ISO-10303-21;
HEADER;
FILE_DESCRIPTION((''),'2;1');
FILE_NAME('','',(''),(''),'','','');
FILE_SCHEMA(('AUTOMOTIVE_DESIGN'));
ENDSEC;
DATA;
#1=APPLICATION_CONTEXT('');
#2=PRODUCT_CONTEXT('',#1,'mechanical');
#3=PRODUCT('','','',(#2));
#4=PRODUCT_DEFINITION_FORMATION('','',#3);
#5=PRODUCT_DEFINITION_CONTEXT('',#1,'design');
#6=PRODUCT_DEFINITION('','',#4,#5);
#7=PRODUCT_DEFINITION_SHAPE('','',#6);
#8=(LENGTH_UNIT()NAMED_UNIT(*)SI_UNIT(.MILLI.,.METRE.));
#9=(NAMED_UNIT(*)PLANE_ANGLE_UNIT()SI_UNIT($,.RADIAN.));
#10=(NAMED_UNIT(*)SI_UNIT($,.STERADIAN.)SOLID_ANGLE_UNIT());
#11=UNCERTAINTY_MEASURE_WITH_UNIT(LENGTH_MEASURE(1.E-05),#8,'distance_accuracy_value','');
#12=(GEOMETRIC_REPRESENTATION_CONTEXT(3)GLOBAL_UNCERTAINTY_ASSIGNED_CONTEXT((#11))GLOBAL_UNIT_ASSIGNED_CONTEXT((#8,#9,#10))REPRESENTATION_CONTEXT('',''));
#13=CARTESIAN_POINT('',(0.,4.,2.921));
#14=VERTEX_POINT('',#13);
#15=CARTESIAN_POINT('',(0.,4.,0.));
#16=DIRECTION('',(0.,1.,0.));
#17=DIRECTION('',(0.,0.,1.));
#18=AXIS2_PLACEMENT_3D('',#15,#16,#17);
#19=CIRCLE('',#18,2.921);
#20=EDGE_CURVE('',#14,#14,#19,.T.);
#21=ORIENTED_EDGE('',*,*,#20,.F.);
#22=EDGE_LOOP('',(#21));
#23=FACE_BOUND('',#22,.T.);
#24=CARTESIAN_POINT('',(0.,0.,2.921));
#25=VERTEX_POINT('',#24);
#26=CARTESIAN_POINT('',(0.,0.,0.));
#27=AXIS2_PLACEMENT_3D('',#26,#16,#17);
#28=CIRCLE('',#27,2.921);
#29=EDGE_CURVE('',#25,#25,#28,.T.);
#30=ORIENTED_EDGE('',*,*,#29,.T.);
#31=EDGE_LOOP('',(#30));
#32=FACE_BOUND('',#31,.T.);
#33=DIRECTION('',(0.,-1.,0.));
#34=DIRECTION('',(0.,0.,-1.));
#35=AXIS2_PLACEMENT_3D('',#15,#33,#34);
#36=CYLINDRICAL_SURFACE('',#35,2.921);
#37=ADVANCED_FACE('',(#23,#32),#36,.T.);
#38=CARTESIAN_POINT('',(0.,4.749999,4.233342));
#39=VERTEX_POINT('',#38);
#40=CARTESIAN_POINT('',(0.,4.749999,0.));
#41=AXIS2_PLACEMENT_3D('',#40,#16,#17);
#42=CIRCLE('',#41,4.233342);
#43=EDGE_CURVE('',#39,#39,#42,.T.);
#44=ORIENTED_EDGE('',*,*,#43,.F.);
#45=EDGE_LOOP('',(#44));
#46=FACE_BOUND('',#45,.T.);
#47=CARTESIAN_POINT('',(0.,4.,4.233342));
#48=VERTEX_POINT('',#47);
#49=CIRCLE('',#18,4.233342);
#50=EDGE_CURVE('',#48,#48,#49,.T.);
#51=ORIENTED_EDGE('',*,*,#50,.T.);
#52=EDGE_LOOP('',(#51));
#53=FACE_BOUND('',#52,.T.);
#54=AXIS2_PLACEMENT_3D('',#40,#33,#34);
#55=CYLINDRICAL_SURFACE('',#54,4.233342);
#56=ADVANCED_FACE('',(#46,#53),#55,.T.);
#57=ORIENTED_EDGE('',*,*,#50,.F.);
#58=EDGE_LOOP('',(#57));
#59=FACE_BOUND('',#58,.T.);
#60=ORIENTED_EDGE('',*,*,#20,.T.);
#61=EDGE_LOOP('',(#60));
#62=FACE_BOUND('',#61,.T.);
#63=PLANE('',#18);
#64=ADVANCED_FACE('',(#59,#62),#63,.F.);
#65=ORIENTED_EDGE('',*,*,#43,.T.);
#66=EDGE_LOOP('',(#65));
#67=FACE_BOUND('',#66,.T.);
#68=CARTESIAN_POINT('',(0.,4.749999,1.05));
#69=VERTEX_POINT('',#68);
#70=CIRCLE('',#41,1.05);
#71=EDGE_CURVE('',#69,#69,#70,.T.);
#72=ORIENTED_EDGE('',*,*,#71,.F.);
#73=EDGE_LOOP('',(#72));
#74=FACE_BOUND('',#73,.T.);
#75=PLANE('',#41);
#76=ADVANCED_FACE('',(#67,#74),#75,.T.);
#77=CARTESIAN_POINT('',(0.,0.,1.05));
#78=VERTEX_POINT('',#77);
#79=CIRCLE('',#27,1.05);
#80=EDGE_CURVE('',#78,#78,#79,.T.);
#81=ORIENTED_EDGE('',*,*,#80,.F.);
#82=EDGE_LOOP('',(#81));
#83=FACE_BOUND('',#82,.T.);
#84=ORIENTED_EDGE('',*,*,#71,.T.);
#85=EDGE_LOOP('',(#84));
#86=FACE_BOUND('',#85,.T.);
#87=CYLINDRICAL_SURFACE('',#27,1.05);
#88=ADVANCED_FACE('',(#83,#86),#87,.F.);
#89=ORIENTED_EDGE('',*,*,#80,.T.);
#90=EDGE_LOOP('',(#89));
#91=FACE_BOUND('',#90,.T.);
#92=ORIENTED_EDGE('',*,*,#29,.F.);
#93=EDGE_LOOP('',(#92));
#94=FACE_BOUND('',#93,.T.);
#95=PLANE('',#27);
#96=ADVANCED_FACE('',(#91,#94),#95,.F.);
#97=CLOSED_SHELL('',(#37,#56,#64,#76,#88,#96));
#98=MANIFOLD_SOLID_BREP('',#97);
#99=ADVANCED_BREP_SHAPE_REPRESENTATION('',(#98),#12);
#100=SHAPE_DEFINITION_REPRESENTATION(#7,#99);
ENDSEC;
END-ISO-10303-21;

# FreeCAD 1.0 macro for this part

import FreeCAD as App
import Part
import Sketcher

V = App.Vector
Q = App.Units.Quantity

doc = App.newDocument("Part")
body = doc.addObject("PartDesign::Body", "Body")

# Sketch on XZ plane
sketch1 = body.newObject("Sketcher::SketchObject", "Sketch")
sketch1.AttachmentSupport = (doc.getObject("XZ_Plane"), [""])
sketch1.MapMode = "FlatFace"
sketch1.addGeometry(Part.Circle(V(0, 0, 0), V(0, 0, 1), 2.9), False)
sketch1.addConstraint(Sketcher.Constraint("Coincident", 0, 3, -1, 1))
sketch1.addConstraint(Sketcher.Constraint("Diameter", 0, Q("5.842 mm")))
pad1 = body.newObject("PartDesign::Pad", "Pad")
pad1.Profile = sketch1
pad1.Length = 4
pad1.Reversed = True

# Sketch on XZ plane
sketch2 = body.newObject("Sketcher::SketchObject", "Sketch001")
sketch2.AttachmentSupport = (doc.getObject("XZ_Plane"), [""])
sketch2.MapMode = "FlatFace"
sketch2.AttachmentOffset = App.Placement(V(0, 0, -4), App.Rotation())
sketch2.addGeometry(Part.Circle(V(0, 0, 0), V(0, 0, 1), 4.2), False)
sketch2.addConstraint(Sketcher.Constraint("Coincident", 0, 3, -1, 1))
sketch2.addConstraint(Sketcher.Constraint("Diameter", 0, Q("8.466684 mm")))
pad2 = body.newObject("PartDesign::Pad", "Pad001")
pad2.Profile = sketch2
pad2.Length = 0.749999
pad2.Reversed = True

# Sketch on XZ plane
sketch3 = body.newObject("Sketcher::SketchObject", "Sketch002")
sketch3.AttachmentSupport = (doc.getObject("XZ_Plane"), [""])
sketch3.MapMode = "FlatFace"
sketch3.AttachmentOffset = App.Placement(V(0, 0, -4.749999), App.Rotation())
sketch3.addGeometry(Part.Circle(V(0, 0, 0), V(0, 0, 1), 1.1), False)
sketch3.addConstraint(Sketcher.Constraint("Coincident", 0, 3, -1, 1))
sketch3.addConstraint(Sketcher.Constraint("Diameter", 0, Q("2.1 mm")))
pocket1 = body.newObject("PartDesign::Pocket", "Pocket")
pocket1.Profile = sketch3
pocket1.Type = "ThroughAll"
pocket1.Reversed = True

doc.recompute()
